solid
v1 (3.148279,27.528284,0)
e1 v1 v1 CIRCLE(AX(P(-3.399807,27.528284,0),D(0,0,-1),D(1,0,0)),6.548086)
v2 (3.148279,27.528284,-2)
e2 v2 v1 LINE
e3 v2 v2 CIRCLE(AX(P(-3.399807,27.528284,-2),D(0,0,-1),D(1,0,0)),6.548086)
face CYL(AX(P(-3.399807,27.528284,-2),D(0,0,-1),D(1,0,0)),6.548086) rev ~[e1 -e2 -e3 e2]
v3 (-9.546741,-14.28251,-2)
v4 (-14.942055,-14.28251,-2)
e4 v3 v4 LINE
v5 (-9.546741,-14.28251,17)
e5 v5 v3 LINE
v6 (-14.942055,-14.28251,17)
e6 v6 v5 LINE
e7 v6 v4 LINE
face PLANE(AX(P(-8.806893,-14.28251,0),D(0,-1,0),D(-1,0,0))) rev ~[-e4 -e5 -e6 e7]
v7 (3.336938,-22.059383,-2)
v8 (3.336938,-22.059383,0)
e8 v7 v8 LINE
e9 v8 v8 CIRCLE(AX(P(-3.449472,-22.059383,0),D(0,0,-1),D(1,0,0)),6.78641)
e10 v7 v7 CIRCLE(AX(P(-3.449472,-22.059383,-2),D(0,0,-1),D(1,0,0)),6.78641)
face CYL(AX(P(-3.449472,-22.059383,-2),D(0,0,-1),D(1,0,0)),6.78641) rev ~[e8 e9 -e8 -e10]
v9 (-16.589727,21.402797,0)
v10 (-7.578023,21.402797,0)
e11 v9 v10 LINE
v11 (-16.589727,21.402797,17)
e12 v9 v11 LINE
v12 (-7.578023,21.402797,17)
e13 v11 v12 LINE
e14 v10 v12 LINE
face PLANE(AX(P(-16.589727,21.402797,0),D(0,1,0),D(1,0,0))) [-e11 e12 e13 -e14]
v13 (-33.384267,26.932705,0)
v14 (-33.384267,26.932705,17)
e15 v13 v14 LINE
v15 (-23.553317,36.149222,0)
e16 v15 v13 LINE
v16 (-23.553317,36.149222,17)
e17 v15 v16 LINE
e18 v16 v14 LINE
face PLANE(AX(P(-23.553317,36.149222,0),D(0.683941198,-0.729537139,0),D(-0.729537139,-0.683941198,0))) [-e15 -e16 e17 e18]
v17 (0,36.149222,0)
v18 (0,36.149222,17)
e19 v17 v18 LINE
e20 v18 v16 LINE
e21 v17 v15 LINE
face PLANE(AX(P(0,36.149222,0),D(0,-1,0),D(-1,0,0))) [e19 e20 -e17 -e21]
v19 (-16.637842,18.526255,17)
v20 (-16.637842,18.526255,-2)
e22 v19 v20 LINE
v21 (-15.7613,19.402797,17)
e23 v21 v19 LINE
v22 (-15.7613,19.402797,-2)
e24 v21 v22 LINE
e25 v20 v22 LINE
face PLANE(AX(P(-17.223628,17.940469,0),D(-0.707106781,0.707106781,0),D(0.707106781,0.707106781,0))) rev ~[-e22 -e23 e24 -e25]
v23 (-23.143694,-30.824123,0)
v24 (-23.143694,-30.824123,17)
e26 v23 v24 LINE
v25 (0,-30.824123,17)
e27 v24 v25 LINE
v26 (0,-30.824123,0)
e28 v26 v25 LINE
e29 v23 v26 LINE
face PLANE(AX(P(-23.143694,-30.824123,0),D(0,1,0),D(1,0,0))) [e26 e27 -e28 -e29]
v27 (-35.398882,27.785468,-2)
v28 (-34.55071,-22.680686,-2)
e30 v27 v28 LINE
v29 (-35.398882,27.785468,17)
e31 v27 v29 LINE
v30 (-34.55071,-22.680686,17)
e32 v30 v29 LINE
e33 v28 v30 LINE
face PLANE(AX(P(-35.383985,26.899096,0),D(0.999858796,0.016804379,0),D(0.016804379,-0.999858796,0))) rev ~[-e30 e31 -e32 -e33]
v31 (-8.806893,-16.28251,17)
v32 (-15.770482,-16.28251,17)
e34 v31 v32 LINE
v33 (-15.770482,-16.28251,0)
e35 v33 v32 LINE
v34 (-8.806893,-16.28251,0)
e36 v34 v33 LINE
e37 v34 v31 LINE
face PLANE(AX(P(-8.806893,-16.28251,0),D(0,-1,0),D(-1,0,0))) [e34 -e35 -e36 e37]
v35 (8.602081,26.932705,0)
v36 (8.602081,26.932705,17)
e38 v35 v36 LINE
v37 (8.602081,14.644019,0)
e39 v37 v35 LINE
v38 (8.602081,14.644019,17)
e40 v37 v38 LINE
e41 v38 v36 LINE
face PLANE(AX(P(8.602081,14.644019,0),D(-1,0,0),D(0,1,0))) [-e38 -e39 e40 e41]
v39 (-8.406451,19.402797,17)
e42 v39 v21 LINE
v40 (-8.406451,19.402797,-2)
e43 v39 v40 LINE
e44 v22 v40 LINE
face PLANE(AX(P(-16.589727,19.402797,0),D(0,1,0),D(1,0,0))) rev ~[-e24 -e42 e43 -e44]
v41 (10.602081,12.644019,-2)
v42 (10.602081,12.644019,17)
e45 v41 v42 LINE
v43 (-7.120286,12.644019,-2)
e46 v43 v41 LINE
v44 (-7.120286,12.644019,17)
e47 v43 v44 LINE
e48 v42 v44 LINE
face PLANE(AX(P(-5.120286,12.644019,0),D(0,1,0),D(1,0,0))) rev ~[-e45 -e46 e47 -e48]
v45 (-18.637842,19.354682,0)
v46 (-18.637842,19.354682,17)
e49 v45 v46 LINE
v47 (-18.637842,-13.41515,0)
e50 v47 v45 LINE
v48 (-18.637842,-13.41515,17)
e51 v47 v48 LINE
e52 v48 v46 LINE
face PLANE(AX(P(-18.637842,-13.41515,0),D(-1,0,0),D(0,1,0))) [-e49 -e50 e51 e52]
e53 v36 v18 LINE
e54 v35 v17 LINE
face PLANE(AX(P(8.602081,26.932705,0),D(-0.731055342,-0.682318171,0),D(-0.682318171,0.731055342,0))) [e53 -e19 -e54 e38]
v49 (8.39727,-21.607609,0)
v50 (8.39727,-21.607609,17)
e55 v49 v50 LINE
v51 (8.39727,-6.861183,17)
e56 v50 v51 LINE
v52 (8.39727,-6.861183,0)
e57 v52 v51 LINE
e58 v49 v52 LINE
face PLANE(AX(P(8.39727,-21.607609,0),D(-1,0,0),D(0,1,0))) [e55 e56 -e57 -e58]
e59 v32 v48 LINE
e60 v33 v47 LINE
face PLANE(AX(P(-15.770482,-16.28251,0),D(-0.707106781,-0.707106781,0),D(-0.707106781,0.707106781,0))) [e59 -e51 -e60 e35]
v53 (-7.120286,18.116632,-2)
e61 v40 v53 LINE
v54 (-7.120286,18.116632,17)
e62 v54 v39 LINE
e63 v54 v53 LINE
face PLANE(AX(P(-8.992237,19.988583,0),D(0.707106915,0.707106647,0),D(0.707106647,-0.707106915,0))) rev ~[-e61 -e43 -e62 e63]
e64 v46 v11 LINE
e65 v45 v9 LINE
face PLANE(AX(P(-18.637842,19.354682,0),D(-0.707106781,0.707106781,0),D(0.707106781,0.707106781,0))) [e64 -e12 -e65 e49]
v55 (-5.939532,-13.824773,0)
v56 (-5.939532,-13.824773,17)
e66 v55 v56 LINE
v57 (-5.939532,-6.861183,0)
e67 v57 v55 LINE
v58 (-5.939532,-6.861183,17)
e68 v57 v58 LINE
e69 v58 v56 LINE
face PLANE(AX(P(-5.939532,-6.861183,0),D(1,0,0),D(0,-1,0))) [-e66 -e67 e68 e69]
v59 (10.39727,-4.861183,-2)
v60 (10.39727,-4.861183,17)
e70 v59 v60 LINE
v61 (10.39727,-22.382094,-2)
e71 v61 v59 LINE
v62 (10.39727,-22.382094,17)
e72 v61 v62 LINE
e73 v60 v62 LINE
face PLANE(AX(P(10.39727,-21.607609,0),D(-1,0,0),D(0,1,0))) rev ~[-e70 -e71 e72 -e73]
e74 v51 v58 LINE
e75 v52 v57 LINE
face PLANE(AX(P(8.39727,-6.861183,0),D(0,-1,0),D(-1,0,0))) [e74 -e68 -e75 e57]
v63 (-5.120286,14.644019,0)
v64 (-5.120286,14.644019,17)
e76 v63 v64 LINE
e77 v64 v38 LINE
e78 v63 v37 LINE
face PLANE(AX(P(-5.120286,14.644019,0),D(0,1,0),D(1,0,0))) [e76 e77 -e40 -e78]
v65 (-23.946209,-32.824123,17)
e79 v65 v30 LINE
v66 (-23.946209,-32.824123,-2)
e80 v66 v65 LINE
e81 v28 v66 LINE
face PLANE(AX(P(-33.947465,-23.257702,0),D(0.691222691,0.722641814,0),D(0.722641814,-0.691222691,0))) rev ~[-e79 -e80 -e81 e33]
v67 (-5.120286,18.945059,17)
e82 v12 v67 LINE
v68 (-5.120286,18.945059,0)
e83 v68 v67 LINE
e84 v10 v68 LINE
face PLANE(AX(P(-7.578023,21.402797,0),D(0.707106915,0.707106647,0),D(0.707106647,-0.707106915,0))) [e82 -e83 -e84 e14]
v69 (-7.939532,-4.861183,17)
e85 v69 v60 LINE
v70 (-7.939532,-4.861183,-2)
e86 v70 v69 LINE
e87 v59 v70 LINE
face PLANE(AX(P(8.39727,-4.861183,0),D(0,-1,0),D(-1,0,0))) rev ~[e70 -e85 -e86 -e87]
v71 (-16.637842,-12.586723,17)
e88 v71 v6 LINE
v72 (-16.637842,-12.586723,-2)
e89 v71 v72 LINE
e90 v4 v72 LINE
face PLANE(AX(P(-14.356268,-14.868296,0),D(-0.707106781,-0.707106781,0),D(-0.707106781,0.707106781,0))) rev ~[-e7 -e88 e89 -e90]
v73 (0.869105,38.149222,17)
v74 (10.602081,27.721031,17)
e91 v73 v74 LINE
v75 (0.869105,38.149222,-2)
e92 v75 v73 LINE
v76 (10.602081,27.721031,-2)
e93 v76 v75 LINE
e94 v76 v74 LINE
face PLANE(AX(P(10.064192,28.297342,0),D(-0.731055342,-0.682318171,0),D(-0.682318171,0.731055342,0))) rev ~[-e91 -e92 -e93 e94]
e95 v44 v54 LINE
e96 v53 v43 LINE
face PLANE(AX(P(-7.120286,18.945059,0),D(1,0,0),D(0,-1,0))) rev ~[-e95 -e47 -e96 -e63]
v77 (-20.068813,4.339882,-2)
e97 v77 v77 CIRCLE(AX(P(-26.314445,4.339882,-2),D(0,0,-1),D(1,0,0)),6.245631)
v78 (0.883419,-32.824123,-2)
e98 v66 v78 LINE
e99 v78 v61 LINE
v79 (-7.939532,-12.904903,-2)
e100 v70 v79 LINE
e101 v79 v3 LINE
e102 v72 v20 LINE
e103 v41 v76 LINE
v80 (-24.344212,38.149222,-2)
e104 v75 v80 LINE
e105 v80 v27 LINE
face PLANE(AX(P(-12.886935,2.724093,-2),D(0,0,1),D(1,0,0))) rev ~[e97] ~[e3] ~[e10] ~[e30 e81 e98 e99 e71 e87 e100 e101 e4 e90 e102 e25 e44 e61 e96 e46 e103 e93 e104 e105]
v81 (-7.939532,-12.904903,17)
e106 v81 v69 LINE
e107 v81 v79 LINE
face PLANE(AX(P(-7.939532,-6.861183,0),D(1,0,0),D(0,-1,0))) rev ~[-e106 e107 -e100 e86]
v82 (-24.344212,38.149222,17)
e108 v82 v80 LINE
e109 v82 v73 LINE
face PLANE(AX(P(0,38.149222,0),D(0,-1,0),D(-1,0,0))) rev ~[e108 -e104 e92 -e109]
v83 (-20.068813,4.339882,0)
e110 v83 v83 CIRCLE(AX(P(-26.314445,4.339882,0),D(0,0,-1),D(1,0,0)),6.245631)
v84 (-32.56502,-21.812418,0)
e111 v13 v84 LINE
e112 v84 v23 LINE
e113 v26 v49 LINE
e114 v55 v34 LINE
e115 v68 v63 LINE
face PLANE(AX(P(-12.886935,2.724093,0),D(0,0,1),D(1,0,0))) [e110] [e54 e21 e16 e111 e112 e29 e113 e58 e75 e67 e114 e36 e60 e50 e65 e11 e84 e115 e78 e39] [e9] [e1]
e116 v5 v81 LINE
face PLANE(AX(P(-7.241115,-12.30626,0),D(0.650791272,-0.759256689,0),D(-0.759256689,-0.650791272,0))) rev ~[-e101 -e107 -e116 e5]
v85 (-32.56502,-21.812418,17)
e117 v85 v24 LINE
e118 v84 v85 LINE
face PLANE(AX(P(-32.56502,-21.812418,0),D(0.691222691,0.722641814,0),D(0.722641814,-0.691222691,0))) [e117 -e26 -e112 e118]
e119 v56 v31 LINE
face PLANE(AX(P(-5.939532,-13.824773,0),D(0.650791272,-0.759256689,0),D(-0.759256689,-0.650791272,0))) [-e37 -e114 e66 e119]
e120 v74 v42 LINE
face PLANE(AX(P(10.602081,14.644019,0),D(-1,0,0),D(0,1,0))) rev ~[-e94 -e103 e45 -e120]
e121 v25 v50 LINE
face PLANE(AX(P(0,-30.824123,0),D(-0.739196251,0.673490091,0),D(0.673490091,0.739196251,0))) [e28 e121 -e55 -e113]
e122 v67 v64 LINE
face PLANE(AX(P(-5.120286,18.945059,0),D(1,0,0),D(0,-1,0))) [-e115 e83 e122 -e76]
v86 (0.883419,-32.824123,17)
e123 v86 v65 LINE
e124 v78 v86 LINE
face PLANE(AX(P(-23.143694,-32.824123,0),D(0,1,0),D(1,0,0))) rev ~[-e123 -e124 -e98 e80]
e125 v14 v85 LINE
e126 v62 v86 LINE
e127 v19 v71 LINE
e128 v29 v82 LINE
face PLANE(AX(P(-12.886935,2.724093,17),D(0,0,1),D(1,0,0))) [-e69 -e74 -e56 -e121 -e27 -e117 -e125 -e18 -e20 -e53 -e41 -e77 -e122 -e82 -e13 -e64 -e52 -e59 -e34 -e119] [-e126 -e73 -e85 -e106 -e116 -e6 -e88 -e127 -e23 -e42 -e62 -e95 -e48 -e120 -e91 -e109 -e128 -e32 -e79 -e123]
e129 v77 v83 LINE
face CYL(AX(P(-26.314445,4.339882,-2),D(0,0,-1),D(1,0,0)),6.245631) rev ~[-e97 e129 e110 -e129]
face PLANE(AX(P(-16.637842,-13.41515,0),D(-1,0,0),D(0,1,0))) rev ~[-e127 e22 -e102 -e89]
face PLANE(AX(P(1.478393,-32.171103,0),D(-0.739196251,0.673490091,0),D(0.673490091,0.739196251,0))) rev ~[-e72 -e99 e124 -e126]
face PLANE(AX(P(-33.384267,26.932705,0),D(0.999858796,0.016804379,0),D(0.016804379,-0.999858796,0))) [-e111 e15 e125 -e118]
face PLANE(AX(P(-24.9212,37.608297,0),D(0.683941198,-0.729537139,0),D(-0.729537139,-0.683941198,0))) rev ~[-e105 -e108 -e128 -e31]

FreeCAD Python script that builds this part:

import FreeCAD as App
import Part
import Sketcher
from FreeCAD import Vector
Q = App.Units.Quantity


def faces_at(feature, points):
    """Names of the faces that lie closest to the given points."""
    faces = feature.Shape.Faces
    near = lambda p: min(range(len(faces)), key=lambda i: faces[i].distToShape(Part.Vertex(*p))[0])
    return sorted({f"Face{near(p) + 1}" for p in points})


def add_polygon(sketch, points):
    """Adds a closed chain of lines whose ends are joined by coincident constraints."""
    first, n = sketch.GeometryCount, len(points)
    for a, b in zip(points, points[1:] + points[:1]):
        sketch.addGeometry(Part.LineSegment(App.Vector(*a, 0), App.Vector(*b, 0)), False)
    for i in range(n):
        sketch.addConstraint(Sketcher.Constraint("Coincident", first + i, 2, first + (i + 1) % n, 1))

doc = App.newDocument("Part")
params = doc.addObject("Spreadsheet::Sheet", "Params")
for row, (alias, value) in enumerate([
    ("pad1_length", "17 mm"),
    ("thickness_wall", "2 mm"),
    ("pocket1_length", "30 mm"),
], start=1):
    params.set(f"A{row}", alias)
    params.set(f"B{row}", "=" + value)
    params.setAlias(f"B{row}", alias)

body = doc.addObject("PartDesign::Body", "Body")

# Sketch on XY plane
sketch1 = body.newObject("Sketcher::SketchObject", "Sketch")
sketch1.AttachmentSupport = (doc.getObject("XY_Plane"), [""])
sketch1.MapMode = "FlatFace"
add_polygon(sketch1, [(-23.6, 36.1), (-33.4, 26.9), (-32.6, -21.8), (-23.1, -30.8), (0, -30.8), (8.4, -21.6), (8.4, -6.9), (-5.9, -6.9), (-5.9, -13.8), (-8.8, -16.3), (-15.8, -16.3), (-18.6, -13.4), (-18.6, 19.4), (-16.6, 21.4), (-7.6, 21.4), (-5.1, 18.9), (-5.1, 14.6), (8.6, 14.6), (8.6, 26.9), (0, 36.1)])  # lines 0-19
sketch1.addConstraint([
    Sketcher.Constraint("Horizontal", 3),
    Sketcher.Constraint("Vertical", 5),
    Sketcher.Constraint("Horizontal", 6),
    Sketcher.Constraint("Vertical", 7),
    Sketcher.Constraint("Horizontal", 9),
    Sketcher.Constraint("Vertical", 11),
    Sketcher.Constraint("Horizontal", 13),
    Sketcher.Constraint("Vertical", 15),
    Sketcher.Constraint("Horizontal", 16),
    Sketcher.Constraint("Vertical", 17),
    Sketcher.Constraint("Horizontal", 19),
    Sketcher.Constraint("PointOnObject", 3, 2, -2),
    Sketcher.Constraint("PointOnObject", 18, 2, -2),
    Sketcher.Constraint("Perpendicular", 10, 12),
    Sketcher.Constraint("Perpendicular", 12, 14),
    Sketcher.Constraint("Horizontal", 0, 2, 17, 2),
    Sketcher.Constraint("Equal", 9, 7),
    Sketcher.Constraint("Angle", 10, Q("135 deg")),
    Sketcher.Constraint("Distance", 0, 13.475599),
    Sketcher.Constraint("DistanceX", 9, 2, 9, 1, 6.963589),
    Sketcher.Constraint("DistanceY", 15, 2, 15, 1, 4.30104),
    Sketcher.Constraint("DistanceY", 4, 2, 8, 2, 5.325099),
    Sketcher.Constraint("Distance", 2, 13.037339),
    Sketcher.Constraint("Distance", 4, 12.46829),
    Sketcher.Constraint("Distance", 10, 4.055059),
    Sketcher.Constraint("Distance", 12, 2.896471),
    Sketcher.Constraint("Distance", 18, 12.60714),
    Sketcher.Constraint("DistanceX", 3, 1, 3, 2, 23.143694),
    Sketcher.Constraint("DistanceX", 6, 2, 6, 1, 14.336802),
    Sketcher.Constraint("DistanceX", 13, 1, 13, 2, 9.011704),
    Sketcher.Constraint("DistanceX", 16, 1, 16, 2, 13.722367),
    Sketcher.Constraint("DistanceX", 19, 2, 19, 1, 23.553317),
    Sketcher.Constraint("DistanceY", 5, 1, 5, 2, 14.746426),
    Sketcher.Constraint("DistanceY", 11, 1, 11, 2, 32.769833),
    Sketcher.Constraint("DistanceY", 17, 1, 17, 2, 12.288686),
    Sketcher.Constraint("DistanceX", 1, 2, -1, 1, 32.56502),
    Sketcher.Constraint("DistanceY", 1, 2, -1, 1, 21.812418),
    Sketcher.Constraint("DistanceX", -1, 1, 4, 2, 8.39727),
    Sketcher.Constraint("DistanceX", 9, 2, -1, 1, 15.770482),
    Sketcher.Constraint("DistanceY", -1, 1, 14, 2, 18.945059),
])
pad1 = body.newObject("PartDesign::Pad", "Pad")
pad1.Profile = sketch1
pad1.setExpression("Length", "Params.pad1_length")
doc.recompute()

thickness = body.newObject("PartDesign::Thickness", "Thickness")
thickness.Base = (pad1, faces_at(pad1, [(-20.788, -10.732, 17)]))
thickness.setExpression("Value", "Params.thickness_wall")
thickness.Reversed = False
thickness.Join = "Intersection"

# Sketch on XY plane
sketch2 = body.newObject("Sketcher::SketchObject", "Sketch001")
sketch2.AttachmentSupport = (doc.getObject("XY_Plane"), [""])
sketch2.MapMode = "FlatFace"
sketch2.AttachmentOffset = App.Placement(Vector(0, 0, -2), App.Rotation())
sketch2.addGeometry([
    Part.Circle(Vector(-3, 28, 0), Vector(0, 0, 1), 7),
    Part.Circle(Vector(-26, 4, 0), Vector(0, 0, 1), 6),
    Part.Circle(Vector(-3, -22, 0), Vector(0, 0, 1), 7),
], False)
sketch2.addConstraint([
    Sketcher.Constraint("Diameter", 2, 13.57282),
    Sketcher.Constraint("Diameter", 0, 13.096173),
    Sketcher.Constraint("Diameter", 1, 12.491263),
    Sketcher.Constraint("DistanceY", -1, 1, 1, 3, 4.339882),
    Sketcher.Constraint("DistanceX", 0, 3, -1, 1, 3.399807),
    Sketcher.Constraint("DistanceY", -1, 1, 0, 3, 27.528284),
    Sketcher.Constraint("DistanceX", 1, 3, -1, 1, 26.314445),
    Sketcher.Constraint("DistanceX", 2, 3, -1, 1, 3.449472),
    Sketcher.Constraint("DistanceY", 2, 3, -1, 1, 22.059383),
])
pocket1 = body.newObject("PartDesign::Pocket", "Pocket")
pocket1.Profile = sketch2
pocket1.setExpression("Length", "Params.pocket1_length")
pocket1.Reversed = True

doc.recompute()
